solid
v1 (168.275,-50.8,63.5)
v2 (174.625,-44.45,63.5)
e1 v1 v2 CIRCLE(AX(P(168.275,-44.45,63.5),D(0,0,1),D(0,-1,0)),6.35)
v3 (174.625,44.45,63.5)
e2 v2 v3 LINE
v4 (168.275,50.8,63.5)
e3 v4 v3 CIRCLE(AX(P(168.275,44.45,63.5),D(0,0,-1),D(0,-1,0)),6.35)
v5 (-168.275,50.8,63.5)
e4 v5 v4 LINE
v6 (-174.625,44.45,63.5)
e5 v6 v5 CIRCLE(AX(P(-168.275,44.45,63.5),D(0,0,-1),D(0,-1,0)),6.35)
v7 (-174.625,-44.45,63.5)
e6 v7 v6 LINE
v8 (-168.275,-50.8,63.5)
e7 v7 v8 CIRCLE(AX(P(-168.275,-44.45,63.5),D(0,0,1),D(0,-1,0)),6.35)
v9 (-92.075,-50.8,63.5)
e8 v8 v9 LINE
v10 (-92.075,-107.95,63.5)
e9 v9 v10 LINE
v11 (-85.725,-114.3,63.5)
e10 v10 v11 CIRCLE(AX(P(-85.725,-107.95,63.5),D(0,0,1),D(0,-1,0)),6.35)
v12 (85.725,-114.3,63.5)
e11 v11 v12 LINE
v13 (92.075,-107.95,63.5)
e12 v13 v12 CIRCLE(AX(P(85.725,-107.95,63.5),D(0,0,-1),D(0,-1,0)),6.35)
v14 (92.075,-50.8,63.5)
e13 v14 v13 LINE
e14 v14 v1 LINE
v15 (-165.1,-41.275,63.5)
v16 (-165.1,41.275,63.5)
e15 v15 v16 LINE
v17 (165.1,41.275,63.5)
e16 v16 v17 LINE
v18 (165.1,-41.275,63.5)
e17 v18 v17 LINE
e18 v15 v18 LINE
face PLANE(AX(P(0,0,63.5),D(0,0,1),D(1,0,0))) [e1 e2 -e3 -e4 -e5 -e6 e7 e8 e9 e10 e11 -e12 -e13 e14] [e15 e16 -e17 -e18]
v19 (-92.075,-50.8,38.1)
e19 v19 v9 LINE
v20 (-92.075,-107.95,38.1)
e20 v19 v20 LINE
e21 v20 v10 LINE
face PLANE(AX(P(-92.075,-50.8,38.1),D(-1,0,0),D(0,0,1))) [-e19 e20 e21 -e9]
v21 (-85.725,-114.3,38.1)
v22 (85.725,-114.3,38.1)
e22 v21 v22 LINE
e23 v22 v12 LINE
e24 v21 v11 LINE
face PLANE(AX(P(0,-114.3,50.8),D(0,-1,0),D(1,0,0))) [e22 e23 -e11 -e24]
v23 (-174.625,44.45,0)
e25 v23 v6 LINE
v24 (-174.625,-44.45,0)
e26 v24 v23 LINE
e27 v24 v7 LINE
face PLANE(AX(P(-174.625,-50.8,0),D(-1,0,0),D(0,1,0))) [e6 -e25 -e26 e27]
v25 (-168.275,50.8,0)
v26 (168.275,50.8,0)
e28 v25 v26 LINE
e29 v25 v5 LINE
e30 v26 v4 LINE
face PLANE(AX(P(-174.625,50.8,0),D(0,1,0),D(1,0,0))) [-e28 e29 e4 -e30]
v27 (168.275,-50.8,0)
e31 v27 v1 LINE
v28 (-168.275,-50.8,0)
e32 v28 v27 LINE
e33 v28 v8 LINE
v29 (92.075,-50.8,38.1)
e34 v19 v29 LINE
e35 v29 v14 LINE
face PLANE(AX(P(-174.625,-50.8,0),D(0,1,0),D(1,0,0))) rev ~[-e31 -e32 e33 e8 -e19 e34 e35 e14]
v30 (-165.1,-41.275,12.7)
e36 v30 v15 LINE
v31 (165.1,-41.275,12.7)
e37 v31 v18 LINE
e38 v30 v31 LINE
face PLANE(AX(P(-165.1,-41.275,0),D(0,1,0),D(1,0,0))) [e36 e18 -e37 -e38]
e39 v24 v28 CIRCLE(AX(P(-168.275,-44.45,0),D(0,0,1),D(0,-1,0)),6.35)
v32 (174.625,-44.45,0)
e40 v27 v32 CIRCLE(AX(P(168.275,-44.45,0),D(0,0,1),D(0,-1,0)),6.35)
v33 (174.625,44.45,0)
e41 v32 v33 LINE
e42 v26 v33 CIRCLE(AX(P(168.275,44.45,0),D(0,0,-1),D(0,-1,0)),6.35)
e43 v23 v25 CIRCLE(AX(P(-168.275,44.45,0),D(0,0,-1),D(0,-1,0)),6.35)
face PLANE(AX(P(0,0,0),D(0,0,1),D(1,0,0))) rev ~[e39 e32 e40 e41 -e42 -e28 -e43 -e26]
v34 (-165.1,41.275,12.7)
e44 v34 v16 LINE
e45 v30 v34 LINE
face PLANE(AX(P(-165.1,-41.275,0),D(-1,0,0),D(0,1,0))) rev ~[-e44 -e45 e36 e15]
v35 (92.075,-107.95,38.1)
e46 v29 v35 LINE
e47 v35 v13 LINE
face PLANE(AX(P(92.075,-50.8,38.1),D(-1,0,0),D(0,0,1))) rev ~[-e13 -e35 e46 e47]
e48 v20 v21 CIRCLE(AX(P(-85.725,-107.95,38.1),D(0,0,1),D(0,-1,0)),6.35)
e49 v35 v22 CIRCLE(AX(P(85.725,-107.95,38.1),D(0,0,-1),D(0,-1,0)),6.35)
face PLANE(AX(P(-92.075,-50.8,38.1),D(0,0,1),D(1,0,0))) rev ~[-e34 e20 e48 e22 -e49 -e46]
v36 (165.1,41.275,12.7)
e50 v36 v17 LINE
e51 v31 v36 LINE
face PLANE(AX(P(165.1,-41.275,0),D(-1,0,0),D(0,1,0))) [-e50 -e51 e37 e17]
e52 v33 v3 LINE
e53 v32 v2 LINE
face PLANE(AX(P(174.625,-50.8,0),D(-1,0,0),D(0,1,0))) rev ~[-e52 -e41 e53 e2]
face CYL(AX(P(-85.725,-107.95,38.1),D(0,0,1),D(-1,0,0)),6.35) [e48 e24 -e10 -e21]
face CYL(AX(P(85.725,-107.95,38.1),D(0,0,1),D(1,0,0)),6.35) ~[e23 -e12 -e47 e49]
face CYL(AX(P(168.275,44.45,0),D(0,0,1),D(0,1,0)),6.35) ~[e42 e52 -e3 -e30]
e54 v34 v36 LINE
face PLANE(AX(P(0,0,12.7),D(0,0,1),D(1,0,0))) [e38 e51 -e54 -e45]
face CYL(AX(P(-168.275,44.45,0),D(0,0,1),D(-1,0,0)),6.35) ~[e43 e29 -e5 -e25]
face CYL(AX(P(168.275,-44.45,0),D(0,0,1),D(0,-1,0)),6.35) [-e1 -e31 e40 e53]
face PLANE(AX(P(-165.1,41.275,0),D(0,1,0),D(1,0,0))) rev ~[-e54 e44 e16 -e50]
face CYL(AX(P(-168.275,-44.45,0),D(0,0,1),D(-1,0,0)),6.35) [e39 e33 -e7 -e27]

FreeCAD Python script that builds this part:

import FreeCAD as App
import Part
import Sketcher
from FreeCAD import Vector
Q = App.Units.Quantity


def edges_at(feature, points):
    """Names of the edges that pass closest to the given points."""
    edges = feature.Shape.Edges
    near = lambda p: min(range(len(edges)), key=lambda i: edges[i].distToShape(Part.Vertex(*p))[0])
    return sorted({f"Edge{near(p) + 1}" for p in points})


def add_polygon(sketch, points):
    """Adds a closed chain of lines whose ends are joined by coincident constraints."""
    first, n = sketch.GeometryCount, len(points)
    for a, b in zip(points, points[1:] + points[:1]):
        sketch.addGeometry(Part.LineSegment(App.Vector(*a, 0), App.Vector(*b, 0)), False)
    for i in range(n):
        sketch.addConstraint(Sketcher.Constraint("Coincident", first + i, 2, first + (i + 1) % n, 1))

doc = App.newDocument("Part")
params = doc.addObject("Spreadsheet::Sheet", "Params")
for row, (alias, value) in enumerate([
    ("sketch1_width", "13 in"),
    ("sketch1_height", "4 in"),
    ("sketch1_width2", "13.75 in"),
    ("sketch1_height2", "3.25 in"),
    ("pad1_length", "2.5 in"),
    ("fillet_radius", "0.25 in"),
    ("sketch2_width", "13 in"),
    ("sketch2_height", "3.25 in"),
    ("pad2_length", "0.5 in"),
    ("sketch3_height", "1 in"),
    ("sketch3_width", "7.25 in"),
    ("pad3_length", "2.5 in"),
    ("fillet2_radius", "0.25 in"),
], start=1):
    params.set(f"A{row}", alias)
    params.set(f"B{row}", "=" + value)
    params.setAlias(f"B{row}", alias)

body = doc.addObject("PartDesign::Body", "Body")

sketch1 = body.newObject("Sketcher::SketchObject", "Sketch")
sketch1.AttachmentSupport = (doc.getObject("XY_Plane"), [""])
sketch1.MapMode = "FlatFace"
add_polygon(sketch1, [(-175, 51), (-175, -51), (175, -51), (175, 51)])
add_polygon(sketch1, [(165, -41), (-165, -41), (-165, 41), (165, 41)])
sketch1.addConstraint(Sketcher.Constraint("Vertical", 0))
sketch1.addConstraint(Sketcher.Constraint("Horizontal", 1))
sketch1.addConstraint(Sketcher.Constraint("Vertical", 2))
sketch1.addConstraint(Sketcher.Constraint("Horizontal", 3))
sketch1.addConstraint(Sketcher.Constraint("Horizontal", 4))
sketch1.addConstraint(Sketcher.Constraint("Vertical", 5))
sketch1.addConstraint(Sketcher.Constraint("Horizontal", 6))
sketch1.addConstraint(Sketcher.Constraint("Vertical", 7))
sketch1.addConstraint(Sketcher.Constraint("Symmetric", 0, 2, 2, 2, -1, 1))
sketch1.addConstraint(Sketcher.Constraint("Symmetric", 4, 2, 6, 2, -1, 1))
sketch1.addConstraint(Sketcher.Constraint("DistanceX", 4, 2, 4, 1, Q("13 in")))
sketch1.addConstraint(Sketcher.Constraint("DistanceY", 0, 2, 0, 1, Q("4 in")))
sketch1.addConstraint(Sketcher.Constraint("DistanceX", 1, 1, 1, 2, Q("13.75 in")))
sketch1.addConstraint(Sketcher.Constraint("DistanceY", 5, 1, 5, 2, Q("3.25 in")))
sketch1.setExpression("Constraints[18]", "Params.sketch1_width")
sketch1.setExpression("Constraints[19]", "Params.sketch1_height")
sketch1.setExpression("Constraints[20]", "Params.sketch1_width2")
sketch1.setExpression("Constraints[21]", "Params.sketch1_height2")
pad1 = body.newObject("PartDesign::Pad", "Pad")
pad1.Profile = sketch1
pad1.setExpression("Length", "Params.pad1_length")
doc.recompute()

fillet = body.newObject("PartDesign::Fillet", "Fillet")
fillet.Base = (pad1, edges_at(pad1, [
    (-174.625, -50.8, 31.75),
    (174.625, -50.8, 31.75),
    (174.625, 50.8, 31.75),
    (-174.625, 50.8, 31.75),
]))
fillet.setExpression("Radius", "Params.fillet_radius")

sketch2 = body.newObject("Sketcher::SketchObject", "Sketch001")
sketch2.AttachmentSupport = (doc.getObject("XY_Plane"), [""])
sketch2.MapMode = "FlatFace"
add_polygon(sketch2, [(-165, 41), (-165, -41), (165, -41), (165, 41)])
sketch2.addConstraint(Sketcher.Constraint("Vertical", 0))
sketch2.addConstraint(Sketcher.Constraint("Horizontal", 1))
sketch2.addConstraint(Sketcher.Constraint("Vertical", 2))
sketch2.addConstraint(Sketcher.Constraint("Horizontal", 3))
sketch2.addConstraint(Sketcher.Constraint("Symmetric", 0, 2, 2, 2, -1, 1))
sketch2.addConstraint(Sketcher.Constraint("DistanceX", 1, 1, 1, 2, Q("13 in")))
sketch2.addConstraint(Sketcher.Constraint("DistanceY", 0, 2, 0, 1, Q("3.25 in")))
sketch2.setExpression("Constraints[9]", "Params.sketch2_width")
sketch2.setExpression("Constraints[10]", "Params.sketch2_height")
pad2 = body.newObject("PartDesign::Pad", "Pad001")
pad2.Profile = sketch2
pad2.setExpression("Length", "Params.pad2_length")

sketch3 = body.newObject("Sketcher::SketchObject", "Sketch002")
sketch3.AttachmentSupport = (doc.getObject("XZ_Plane"), [""])
sketch3.MapMode = "FlatFace"
sketch3.AttachmentOffset = App.Placement(Vector(0, 0, 2 * 25.4), App.Rotation())
add_polygon(sketch3, [(-92, 64), (-92, 38), (92, 38), (92, 64)])
sketch3.addConstraint(Sketcher.Constraint("Vertical", 0))
sketch3.addConstraint(Sketcher.Constraint("Horizontal", 1))
sketch3.addConstraint(Sketcher.Constraint("Vertical", 2))
sketch3.addConstraint(Sketcher.Constraint("Horizontal", 3))
sketch3.addConstraint(Sketcher.Constraint("DistanceY", 0, 2, 0, 1, Q("1 in")))
sketch3.addConstraint(Sketcher.Constraint("DistanceX", 1, 1, 1, 2, Q("7.25 in")))
sketch3.addConstraint(Sketcher.Constraint("DistanceY", -1, 1, 0, 2, Q("1.5 in")))
sketch3.addConstraint(Sketcher.Constraint("DistanceX", 0, 2, -1, 1, Q("3.625 in")))
sketch3.setExpression("Constraints[8]", "Params.sketch3_height")
sketch3.setExpression("Constraints[9]", "Params.sketch3_width")
pad3 = body.newObject("PartDesign::Pad", "Pad002")
pad3.Profile = sketch3
pad3.setExpression("Length", "Params.pad3_length")
doc.recompute()

fillet2 = body.newObject("PartDesign::Fillet", "Fillet001")
fillet2.Base = (pad3, edges_at(pad3, [(-92.075, -114.3, 50.8), (92.075, -114.3, 50.8)]))
fillet2.setExpression("Radius", "Params.fillet2_radius")

doc.recompute()
